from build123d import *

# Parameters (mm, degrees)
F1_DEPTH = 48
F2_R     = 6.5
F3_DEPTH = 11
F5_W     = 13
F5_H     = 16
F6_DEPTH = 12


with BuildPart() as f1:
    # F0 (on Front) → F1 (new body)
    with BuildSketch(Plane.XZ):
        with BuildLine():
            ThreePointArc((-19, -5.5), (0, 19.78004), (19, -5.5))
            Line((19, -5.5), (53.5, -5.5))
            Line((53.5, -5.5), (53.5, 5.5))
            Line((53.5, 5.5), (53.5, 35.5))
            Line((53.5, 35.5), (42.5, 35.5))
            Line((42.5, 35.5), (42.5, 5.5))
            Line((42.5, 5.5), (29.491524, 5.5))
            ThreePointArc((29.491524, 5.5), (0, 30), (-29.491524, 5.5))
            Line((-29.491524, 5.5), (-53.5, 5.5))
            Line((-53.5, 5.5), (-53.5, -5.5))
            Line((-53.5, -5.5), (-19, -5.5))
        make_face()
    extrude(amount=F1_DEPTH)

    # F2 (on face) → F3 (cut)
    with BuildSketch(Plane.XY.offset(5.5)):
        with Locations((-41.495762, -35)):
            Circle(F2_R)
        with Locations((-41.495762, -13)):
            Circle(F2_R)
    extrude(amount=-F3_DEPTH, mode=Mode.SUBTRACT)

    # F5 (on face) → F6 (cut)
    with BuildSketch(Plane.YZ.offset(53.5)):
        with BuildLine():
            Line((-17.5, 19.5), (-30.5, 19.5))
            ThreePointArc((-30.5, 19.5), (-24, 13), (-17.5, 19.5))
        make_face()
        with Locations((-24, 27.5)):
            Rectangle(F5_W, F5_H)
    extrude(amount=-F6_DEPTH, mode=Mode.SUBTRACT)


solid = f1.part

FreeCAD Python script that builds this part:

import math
import FreeCAD as App
import Part
import Sketcher

V = App.Vector
Q = App.Units.Quantity

doc = App.newDocument("Part")
params = doc.addObject("Spreadsheet::Sheet", "Params")
for row, (alias, value) in enumerate([
    ("sketch1_radius", "30 mm"),
    ("sketch1_width", "11 mm"),
    ("sketch1_height", "41 mm"),
    ("sketch1_width2", "34.5 mm"),
    ("pad1_length", "48 mm"),
    ("sketch2_diameter", "13 mm"),
    ("pocket1_length", "11 mm"),
    ("sketch3_radius", "6.5 mm"),
    ("sketch3_height", "16 mm"),
    ("pocket2_length", "12 mm"),
], start=1):
    params.set(f"A{row}", alias)
    params.set(f"B{row}", "=" + value)
    params.setAlias(f"B{row}", alias)

body = doc.addObject("PartDesign::Body", "Body")

# Sketch on XZ plane
sketch1 = body.newObject("Sketcher::SketchObject", "Sketch")
sketch1.AttachmentSupport = (doc.getObject("XZ_Plane"), [""])
sketch1.MapMode = "FlatFace"
sketch1.addGeometry([
    Part.ArcOfCircle(Part.Circle(V(0, 0, 0), V(0, 0, 1), 20), math.radians(-16), math.radians(196)),  # 0
    Part.LineSegment(V(19, -6, 0), V(54, -6, 0)),  # 1
    Part.LineSegment(V(54, -6, 0), V(54, 36, 0)),  # 2
    Part.LineSegment(V(54, 36, 0), V(42, 36, 0)),  # 3
    Part.LineSegment(V(42, 36, 0), V(42, 6, 0)),  # 4
    Part.LineSegment(V(42, 6, 0), V(29, 6, 0)),  # 5
    Part.ArcOfCircle(Part.Circle(V(0, 0, 0), V(0, 0, 1), 30), math.radians(11), math.radians(169)),  # 6
    Part.LineSegment(V(-29, 6, 0), V(-54, 6, 0)),  # 7
    Part.LineSegment(V(-54, 6, 0), V(-54, -6, 0)),  # 8
    Part.LineSegment(V(-54, -6, 0), V(-19, -6, 0)),  # 9
], False)
sketch1.addConstraint([
    Sketcher.Constraint("Coincident", 0, 1, 1, 1),
    Sketcher.Constraint("Coincident", 1, 2, 2, 1),
    Sketcher.Constraint("Coincident", 2, 2, 3, 1),
    Sketcher.Constraint("Coincident", 3, 2, 4, 1),
    Sketcher.Constraint("Coincident", 4, 2, 5, 1),
    Sketcher.Constraint("Coincident", 5, 2, 6, 1),
    Sketcher.Constraint("Coincident", 6, 2, 7, 1),
    Sketcher.Constraint("Coincident", 7, 2, 8, 1),
    Sketcher.Constraint("Coincident", 8, 2, 9, 1),
    Sketcher.Constraint("Coincident", 9, 2, 0, 2),
    Sketcher.Constraint("Horizontal", 1),
    Sketcher.Constraint("Vertical", 2),
    Sketcher.Constraint("Horizontal", 3),
    Sketcher.Constraint("Vertical", 4),
    Sketcher.Constraint("Horizontal", 5),
    Sketcher.Constraint("Horizontal", 7),
    Sketcher.Constraint("Vertical", 8),
    Sketcher.Constraint("Horizontal", 9),
    Sketcher.Constraint("Coincident", 0, 3, -1, 1),
    Sketcher.Constraint("Coincident", 6, 3, -1, 1),
    Sketcher.Constraint("Symmetric", 1, 2, 7, 2, -1, 1),
    Sketcher.Constraint("Horizontal", 5, 2, 6, 2),
    Sketcher.Constraint("Horizontal", 1, 2, 8, 2),
    Sketcher.Constraint("Equal", 3, 8),
    Sketcher.Constraint("Radius", 6, Q("30 mm")),
    Sketcher.Constraint("DistanceX", 3, 2, 3, 1, Q("11 mm")),
    Sketcher.Constraint("DistanceY", 2, 1, 2, 2, Q("41 mm")),
    Sketcher.Constraint("DistanceX", 1, 1, 1, 2, Q("34.5 mm")),
    Sketcher.Constraint("DistanceX", -1, 1, 0, 1, Q("19 mm")),
])
sketch1.setExpression("Constraints[24]", "Params.sketch1_radius")
sketch1.setExpression("Constraints[25]", "Params.sketch1_width")
sketch1.setExpression("Constraints[26]", "Params.sketch1_height")
sketch1.setExpression("Constraints[27]", "Params.sketch1_width2")
pad1 = body.newObject("PartDesign::Pad", "Pad")
pad1.Profile = sketch1
pad1.setExpression("Length", "Params.pad1_length")

# Sketch on XY plane
sketch2 = body.newObject("Sketcher::SketchObject", "Sketch001")
sketch2.AttachmentSupport = (doc.getObject("XY_Plane"), [""])
sketch2.MapMode = "FlatFace"
sketch2.AttachmentOffset = App.Placement(V(0, 0, 5.5), App.Rotation())
sketch2.addGeometry([
    Part.Circle(V(-41, -35, 0), V(0, 0, 1), 6),
    Part.Circle(V(-41, -13, 0), V(0, 0, 1), 6),
], False)
sketch2.addConstraint([
    Sketcher.Constraint("Equal", 0, 1),
    Sketcher.Constraint("Vertical", 0, 3, 1, 3),
    Sketcher.Constraint("Diameter", 0, Q("13 mm")),
    Sketcher.Constraint("DistanceY", 0, 3, -1, 1, Q("35 mm")),
    Sketcher.Constraint("DistanceY", 1, 3, -1, 1, Q("13 mm")),
    Sketcher.Constraint("DistanceX", 0, 3, -1, 1, Q("41.495762 mm")),
])
sketch2.setExpression("Constraints[2]", "Params.sketch2_diameter")
pocket1 = body.newObject("PartDesign::Pocket", "Pocket")
pocket1.Profile = sketch2
pocket1.setExpression("Length", "Params.pocket1_length")

# Sketch on YZ plane
sketch3 = body.newObject("Sketcher::SketchObject", "Sketch002")
sketch3.AttachmentSupport = (doc.getObject("YZ_Plane"), [""])
sketch3.MapMode = "FlatFace"
sketch3.AttachmentOffset = App.Placement(V(0, 0, 53.5), App.Rotation())
sketch3.addGeometry([
    Part.ArcOfCircle(Part.Circle(V(-24, 20, 0), V(0, 0, 1), 6), math.radians(180), math.radians(360)),
    Part.LineSegment(V(-18, 20, 0), V(-18, 36, 0)),
    Part.LineSegment(V(-18, 36, 0), V(-30, 36, 0)),
    Part.LineSegment(V(-30, 36, 0), V(-30, 20, 0)),
], False)
sketch3.addConstraint([
    Sketcher.Constraint("Tangent", 0, 2, 1, 1),
    Sketcher.Constraint("Coincident", 1, 2, 2, 1),
    Sketcher.Constraint("Coincident", 2, 2, 3, 1),
    Sketcher.Constraint("Tangent", 3, 2, 0, 1),
    Sketcher.Constraint("Vertical", 1),
    Sketcher.Constraint("Horizontal", 2),
    Sketcher.Constraint("Vertical", 3),
    Sketcher.Constraint("Radius", 0, Q("6.5 mm")),
    Sketcher.Constraint("DistanceY", 1, 1, 1, 2, Q("16 mm")),
    Sketcher.Constraint("DistanceX", 0, 3, -1, 1, Q("24 mm")),
    Sketcher.Constraint("DistanceY", -1, 1, 0, 3, Q("19.5 mm")),
])
sketch3.setExpression("Constraints[7]", "Params.sketch3_radius")
sketch3.setExpression("Constraints[8]", "Params.sketch3_height")
pocket2 = body.newObject("PartDesign::Pocket", "Pocket001")
pocket2.Profile = sketch3
pocket2.setExpression("Length", "Params.pocket2_length")

doc.recompute()
